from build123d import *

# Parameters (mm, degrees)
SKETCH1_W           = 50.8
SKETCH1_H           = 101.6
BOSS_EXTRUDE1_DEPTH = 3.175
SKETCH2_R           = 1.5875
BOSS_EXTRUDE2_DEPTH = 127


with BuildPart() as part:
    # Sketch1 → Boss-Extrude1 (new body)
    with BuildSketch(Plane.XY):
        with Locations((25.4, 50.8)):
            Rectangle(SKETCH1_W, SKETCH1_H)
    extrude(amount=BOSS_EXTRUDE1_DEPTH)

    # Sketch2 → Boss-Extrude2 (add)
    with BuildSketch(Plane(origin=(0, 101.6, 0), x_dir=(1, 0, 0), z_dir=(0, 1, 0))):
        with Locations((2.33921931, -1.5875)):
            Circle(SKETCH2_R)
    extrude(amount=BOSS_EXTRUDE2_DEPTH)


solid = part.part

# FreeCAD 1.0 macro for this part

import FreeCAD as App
import Part
import Sketcher

V = App.Vector
Q = App.Units.Quantity


def add_polygon(sketch, points):
    """Adds a closed chain of lines whose ends are joined by coincident constraints."""
    first, n = sketch.GeometryCount, len(points)
    for a, b in zip(points, points[1:] + points[:1]):
        sketch.addGeometry(Part.LineSegment(App.Vector(*a, 0), App.Vector(*b, 0)), False)
    for i in range(n):
        sketch.addConstraint(Sketcher.Constraint("Coincident", first + i, 2, first + (i + 1) % n, 1))

doc = App.newDocument("Part")
params = doc.addObject("Spreadsheet::Sheet", "Params")
for row, (alias, value) in enumerate([
    ("sketch1_width", "2 in"),
    ("sketch1_height", "4 in"),
    ("pad1_length", "0.125 in"),
    ("sketch2_diameter", "0.125 in"),
    ("pad2_length", "5 in"),
], start=1):
    params.set(f"A{row}", alias)
    params.set(f"B{row}", "=" + value)
    params.setAlias(f"B{row}", alias)

body = doc.addObject("PartDesign::Body", "Body")

sketch1 = doc.addObject("Sketcher::SketchObject", "Sketch")
body.addObject(sketch1)
sketch1.AttachmentSupport = (doc.XY_Plane, [""])
sketch1.MapMode = "FlatFace"
add_polygon(sketch1, [(0, 102), (0, 0), (51, 0), (51, 102)])
sketch1.addConstraint([
    Sketcher.Constraint("Vertical", 0),
    Sketcher.Constraint("Horizontal", 1),
    Sketcher.Constraint("Vertical", 2),
    Sketcher.Constraint("Horizontal", 3),
    Sketcher.Constraint("Coincident", 0, 2, -1, 1),
    Sketcher.Constraint("DistanceX", 1, 1, 1, 2, Q("2 in")),
    Sketcher.Constraint("DistanceY", 0, 2, 0, 1, Q("4 in")),
])
sketch1.setExpression("Constraints[9]", "Params.sketch1_width")
sketch1.setExpression("Constraints[10]", "Params.sketch1_height")
pad1 = doc.addObject("PartDesign::Pad", "Pad")
body.addObject(pad1)
pad1.Profile = sketch1
pad1.setExpression("Length", "Params.pad1_length")

sketch2 = doc.addObject("Sketcher::SketchObject", "Sketch001")
body.addObject(sketch2)
sketch2.AttachmentSupport = (doc.XZ_Plane, [""])
sketch2.MapMode = "FlatFace"
sketch2.AttachmentOffset = App.Placement(V(0, 0, -4 * 25.4), App.Rotation())
sketch2.addGeometry(Part.Circle(V(2.3, 1.6, 0), V(0, 0, 1), 1.6), False)
sketch2.addConstraint([
    Sketcher.Constraint("Diameter", 0, Q("0.125 in")),
    Sketcher.Constraint("DistanceY", -1, 1, 0, 3, Q("0.0625 in")),
    Sketcher.Constraint("DistanceX", -1, 1, 0, 3, 2.339219),
])
sketch2.setExpression("Constraints[0]", "Params.sketch2_diameter")
pad2 = doc.addObject("PartDesign::Pad", "Pad001")
body.addObject(pad2)
pad2.Profile = sketch2
pad2.setExpression("Length", "Params.pad2_length")
pad2.Reversed = True

doc.recompute()
